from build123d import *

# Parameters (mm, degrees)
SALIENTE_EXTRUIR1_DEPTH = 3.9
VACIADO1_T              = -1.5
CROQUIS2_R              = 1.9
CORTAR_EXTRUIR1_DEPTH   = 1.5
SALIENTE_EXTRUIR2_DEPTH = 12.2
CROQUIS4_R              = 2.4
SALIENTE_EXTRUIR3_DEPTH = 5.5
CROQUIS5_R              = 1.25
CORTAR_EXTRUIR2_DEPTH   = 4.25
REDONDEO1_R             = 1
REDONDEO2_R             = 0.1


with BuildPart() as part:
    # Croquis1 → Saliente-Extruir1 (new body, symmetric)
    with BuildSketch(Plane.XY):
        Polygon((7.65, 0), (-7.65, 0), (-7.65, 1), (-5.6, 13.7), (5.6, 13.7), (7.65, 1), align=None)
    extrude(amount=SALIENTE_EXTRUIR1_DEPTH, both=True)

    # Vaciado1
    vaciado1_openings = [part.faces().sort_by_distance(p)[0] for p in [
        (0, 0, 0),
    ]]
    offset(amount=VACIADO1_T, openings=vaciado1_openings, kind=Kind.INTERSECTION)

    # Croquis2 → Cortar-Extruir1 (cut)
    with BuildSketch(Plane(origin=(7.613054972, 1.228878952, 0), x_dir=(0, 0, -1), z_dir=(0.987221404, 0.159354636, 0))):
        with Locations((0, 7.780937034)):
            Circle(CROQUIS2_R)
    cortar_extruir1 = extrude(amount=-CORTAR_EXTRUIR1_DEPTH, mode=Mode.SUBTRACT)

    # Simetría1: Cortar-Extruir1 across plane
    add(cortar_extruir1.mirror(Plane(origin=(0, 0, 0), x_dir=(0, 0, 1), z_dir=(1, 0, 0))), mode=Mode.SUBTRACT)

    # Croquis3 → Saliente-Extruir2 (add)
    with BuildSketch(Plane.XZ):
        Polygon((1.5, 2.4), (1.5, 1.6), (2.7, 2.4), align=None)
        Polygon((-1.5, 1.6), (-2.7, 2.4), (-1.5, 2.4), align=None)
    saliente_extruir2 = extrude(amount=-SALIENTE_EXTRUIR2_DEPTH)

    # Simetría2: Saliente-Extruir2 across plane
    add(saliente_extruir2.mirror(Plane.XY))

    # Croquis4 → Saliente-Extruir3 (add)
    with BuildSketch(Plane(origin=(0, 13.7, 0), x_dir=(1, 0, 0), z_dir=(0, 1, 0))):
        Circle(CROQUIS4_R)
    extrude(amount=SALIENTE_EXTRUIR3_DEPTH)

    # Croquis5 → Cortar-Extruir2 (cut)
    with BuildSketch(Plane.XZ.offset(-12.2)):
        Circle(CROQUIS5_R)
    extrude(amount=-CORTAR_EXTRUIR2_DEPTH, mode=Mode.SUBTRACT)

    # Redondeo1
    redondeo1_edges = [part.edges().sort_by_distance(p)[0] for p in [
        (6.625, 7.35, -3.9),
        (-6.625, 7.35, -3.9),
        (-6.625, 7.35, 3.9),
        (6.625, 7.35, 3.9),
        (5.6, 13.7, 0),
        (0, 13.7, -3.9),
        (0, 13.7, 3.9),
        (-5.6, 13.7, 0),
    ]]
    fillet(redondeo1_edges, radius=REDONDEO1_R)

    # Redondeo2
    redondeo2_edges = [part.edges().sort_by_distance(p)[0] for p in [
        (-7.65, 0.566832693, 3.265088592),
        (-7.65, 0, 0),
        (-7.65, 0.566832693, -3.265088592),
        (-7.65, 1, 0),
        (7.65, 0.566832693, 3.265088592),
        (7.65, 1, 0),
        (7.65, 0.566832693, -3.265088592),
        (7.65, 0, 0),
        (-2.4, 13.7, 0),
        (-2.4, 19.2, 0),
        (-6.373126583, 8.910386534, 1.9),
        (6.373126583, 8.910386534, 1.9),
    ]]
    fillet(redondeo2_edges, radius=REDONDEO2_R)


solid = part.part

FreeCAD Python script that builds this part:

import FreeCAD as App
import Part
import Sketcher

V = App.Vector
Q = App.Units.Quantity


def edges_at(feature, points):
    """Names of the edges that pass closest to the given points."""
    edges = feature.Shape.Edges
    near = lambda p: min(range(len(edges)), key=lambda i: edges[i].distToShape(Part.Vertex(*p))[0])
    return sorted({f"Edge{near(p) + 1}" for p in points})


def faces_at(feature, points):
    """Names of the faces that lie closest to the given points."""
    faces = feature.Shape.Faces
    near = lambda p: min(range(len(faces)), key=lambda i: faces[i].distToShape(Part.Vertex(*p))[0])
    return sorted({f"Face{near(p) + 1}" for p in points})

doc = App.newDocument("Part")
params = doc.addObject("Spreadsheet::Sheet", "Params")
for row, (alias, value) in enumerate([
    ("sketch1_height", "1 mm"),
    ("sketch1_width", "15.3 mm"),
    ("sketch1_width2", "11.2 mm"),
    ("pad1_length", "7.8 mm"),
    ("thickness_wall", "1.5 mm"),
    ("sketch2_diameter", "3.8 mm"),
    ("pocket1_length", "1.5 mm"),
    ("sketch3_width", "1.2 mm"),
    ("sketch3_height", "0.8 mm"),
    ("pad2_length", "12.2 mm"),
    ("sketch4_diameter", "4.8 mm"),
    ("pad3_length", "5.5 mm"),
    ("sketch5_diameter", "2.5 mm"),
    ("pocket2_length", "4.25 mm"),
    ("fillet_radius", "1 mm"),
    ("fillet2_radius", "0.1 mm"),
], start=1):
    params.set(f"A{row}", alias)
    params.set(f"B{row}", "=" + value)
    params.setAlias(f"B{row}", alias)

body = doc.addObject("PartDesign::Body", "Body")

sketch1 = body.newObject("Sketcher::SketchObject", "Sketch")
sketch1.AttachmentSupport = (doc.getObject("XY_Plane"), [""])
sketch1.MapMode = "FlatFace"
sketch1.addGeometry(Part.LineSegment(V(-7.7, 0, 0), V(7.7, 0, 0)), False)
sketch1.addGeometry(Part.LineSegment(V(7.7, 0, 0), V(7.7, 1, 0)), False)
sketch1.addGeometry(Part.LineSegment(V(7.7, 1, 0), V(5.6, 13.7, 0)), False)
sketch1.addGeometry(Part.LineSegment(V(5.6, 13.7, 0), V(-5.6, 13.7, 0)), False)
sketch1.addGeometry(Part.LineSegment(V(-5.6, 13.7, 0), V(-7.7, 1, 0)), False)
sketch1.addGeometry(Part.LineSegment(V(-7.7, 1, 0), V(-7.7, 0, 0)), False)
sketch1.addConstraint(Sketcher.Constraint("Coincident", 0, 2, 1, 1))
sketch1.addConstraint(Sketcher.Constraint("Coincident", 1, 2, 2, 1))
sketch1.addConstraint(Sketcher.Constraint("Coincident", 2, 2, 3, 1))
sketch1.addConstraint(Sketcher.Constraint("Coincident", 3, 2, 4, 1))
sketch1.addConstraint(Sketcher.Constraint("Coincident", 4, 2, 5, 1))
sketch1.addConstraint(Sketcher.Constraint("Coincident", 5, 2, 0, 1))
sketch1.addConstraint(Sketcher.Constraint("Horizontal", 0))
sketch1.addConstraint(Sketcher.Constraint("Vertical", 1))
sketch1.addConstraint(Sketcher.Constraint("Horizontal", 3))
sketch1.addConstraint(Sketcher.Constraint("Vertical", 5))
sketch1.addConstraint(Sketcher.Constraint("Symmetric", 0, 2, 5, 2, -1, 1))
sketch1.addConstraint(Sketcher.Constraint("Horizontal", 1, 2, 4, 2))
sketch1.addConstraint(Sketcher.Constraint("Equal", 2, 4))
sketch1.addConstraint(Sketcher.Constraint("DistanceY", 1, 1, 1, 2, Q("1 mm")))
sketch1.addConstraint(Sketcher.Constraint("DistanceX", 0, 1, 0, 2, Q("15.3 mm")))
sketch1.addConstraint(Sketcher.Constraint("DistanceX", 3, 2, 3, 1, Q("11.2 mm")))
sketch1.addConstraint(Sketcher.Constraint("DistanceY", -1, 1, 2, 2, Q("13.7 mm")))
sketch1.setExpression("Constraints[13]", "Params.sketch1_height")
sketch1.setExpression("Constraints[14]", "Params.sketch1_width")
sketch1.setExpression("Constraints[15]", "Params.sketch1_width2")
pad1 = body.newObject("PartDesign::Pad", "Pad")
pad1.Profile = sketch1
pad1.setExpression("Length", "Params.pad1_length")
pad1.Midplane = True
doc.recompute()

thickness = body.newObject("PartDesign::Thickness", "Thickness")
thickness.Base = (pad1, faces_at(pad1, [(0, 0, 0)]))
thickness.setExpression("Value", "Params.thickness_wall")
thickness.Reversed = True
thickness.Join = "Intersection"

sketch2 = body.newObject("Sketcher::SketchObject", "Sketch001")
sketch2.Placement = App.Placement(V(7.613055, 1.228879, 0), App.Rotation(V(0, 0, -1), V(-0.159354636, 0.987221404, 0), V(0.987221404, 0.159354636, 0), "ZXY"))
sketch2.addGeometry(Part.Circle(V(0, 7.8, 0), V(0, 0, 1), 1.9), False)
sketch2.addConstraint(Sketcher.Constraint("PointOnObject", 0, 3, -2))
sketch2.addConstraint(Sketcher.Constraint("Diameter", 0, Q("3.8 mm")))
sketch2.addConstraint(Sketcher.Constraint("DistanceY", -1, 1, 0, 3, Q("7.780937 mm")))
sketch2.setExpression("Constraints[1]", "Params.sketch2_diameter")
pocket1 = body.newObject("PartDesign::Pocket", "Pocket")
pocket1.Profile = sketch2
pocket1.setExpression("Length", "Params.pocket1_length")
doc.recompute()

mirrored = body.newObject("PartDesign::Mirrored", "Mirrored")
mirrored.Originals = [pocket1]
mirrored.MirrorPlane = (doc.getObject("YZ_Plane"), [""])
body.Tip = mirrored

sketch3 = body.newObject("Sketcher::SketchObject", "Sketch002")
sketch3.AttachmentSupport = (doc.getObject("XZ_Plane"), [""])
sketch3.MapMode = "FlatFace"
sketch3.addGeometry(Part.LineSegment(V(1.5, 2.4, 0), V(1.5, 1.6, 0)), False)
sketch3.addGeometry(Part.LineSegment(V(1.5, 1.6, 0), V(2.7, 2.4, 0)), False)
sketch3.addGeometry(Part.LineSegment(V(2.7, 2.4, 0), V(1.5, 2.4, 0)), False)
sketch3.addGeometry(Part.LineSegment(V(-2.7, 2.4, 0), V(-1.5, 1.6, 0)), False)
sketch3.addGeometry(Part.LineSegment(V(-1.5, 1.6, 0), V(-1.5, 2.4, 0)), False)
sketch3.addGeometry(Part.LineSegment(V(-1.5, 2.4, 0), V(-2.7, 2.4, 0)), False)
sketch3.addConstraint(Sketcher.Constraint("Coincident", 0, 2, 1, 1))
sketch3.addConstraint(Sketcher.Constraint("Coincident", 1, 2, 2, 1))
sketch3.addConstraint(Sketcher.Constraint("Coincident", 2, 2, 0, 1))
sketch3.addConstraint(Sketcher.Constraint("Coincident", 3, 2, 4, 1))
sketch3.addConstraint(Sketcher.Constraint("Coincident", 4, 2, 5, 1))
sketch3.addConstraint(Sketcher.Constraint("Coincident", 5, 2, 3, 1))
sketch3.addConstraint(Sketcher.Constraint("Vertical", 0))
sketch3.addConstraint(Sketcher.Constraint("Horizontal", 2))
sketch3.addConstraint(Sketcher.Constraint("Vertical", 4))
sketch3.addConstraint(Sketcher.Constraint("Horizontal", 5))
sketch3.addConstraint(Sketcher.Constraint("Symmetric", 0, 2, 3, 2, -2))
sketch3.addConstraint(Sketcher.Constraint("Symmetric", 1, 2, 5, 2, -2))
sketch3.addConstraint(Sketcher.Constraint("DistanceX", 2, 2, 2, 1, Q("1.2 mm")))
sketch3.addConstraint(Sketcher.Constraint("DistanceY", 0, 2, 0, 1, Q("0.8 mm")))
sketch3.addConstraint(Sketcher.Constraint("DistanceX", 3, 2, 0, 2, Q("3 mm")))
sketch3.addConstraint(Sketcher.Constraint("DistanceY", -1, 1, 0, 2, Q("1.6 mm")))
sketch3.setExpression("Constraints[12]", "Params.sketch3_width")
sketch3.setExpression("Constraints[13]", "Params.sketch3_height")
pad2 = body.newObject("PartDesign::Pad", "Pad001")
pad2.Profile = sketch3
pad2.setExpression("Length", "Params.pad2_length")
pad2.Reversed = True
doc.recompute()

mirrored2 = body.newObject("PartDesign::Mirrored", "Mirrored001")
mirrored2.Originals = [pad2]
mirrored2.MirrorPlane = (doc.getObject("XY_Plane"), [""])
body.Tip = mirrored2

sketch4 = body.newObject("Sketcher::SketchObject", "Sketch003")
sketch4.AttachmentSupport = (doc.getObject("XZ_Plane"), [""])
sketch4.MapMode = "FlatFace"
sketch4.AttachmentOffset = App.Placement(V(0, 0, -13.7), App.Rotation())
sketch4.addGeometry(Part.Circle(V(0, 0, 0), V(0, 0, 1), 2.4), False)
sketch4.addConstraint(Sketcher.Constraint("Coincident", 0, 3, -1, 1))
sketch4.addConstraint(Sketcher.Constraint("Diameter", 0, Q("4.8 mm")))
sketch4.setExpression("Constraints[1]", "Params.sketch4_diameter")
pad3 = body.newObject("PartDesign::Pad", "Pad002")
pad3.Profile = sketch4
pad3.setExpression("Length", "Params.pad3_length")
pad3.Reversed = True

sketch5 = body.newObject("Sketcher::SketchObject", "Sketch004")
sketch5.AttachmentSupport = (doc.getObject("XZ_Plane"), [""])
sketch5.MapMode = "FlatFace"
sketch5.AttachmentOffset = App.Placement(V(0, 0, -12.2), App.Rotation())
sketch5.addGeometry(Part.Circle(V(0, 0, 0), V(0, 0, 1), 1.2), False)
sketch5.addConstraint(Sketcher.Constraint("Coincident", 0, 3, -1, 1))
sketch5.addConstraint(Sketcher.Constraint("Diameter", 0, Q("2.5 mm")))
sketch5.setExpression("Constraints[1]", "Params.sketch5_diameter")
pocket2 = body.newObject("PartDesign::Pocket", "Pocket001")
pocket2.Profile = sketch5
pocket2.setExpression("Length", "Params.pocket2_length")
doc.recompute()

fillet = body.newObject("PartDesign::Fillet", "Fillet")
fillet.Base = (pocket2, edges_at(pocket2, [
    (6.625, 7.35, -3.9),
    (-6.625, 7.35, -3.9),
    (-6.625, 7.35, 3.9),
    (6.625, 7.35, 3.9),
    (5.6, 13.7, 0),
    (0, 13.7, -3.9),
    (0, 13.7, 3.9),
    (-5.6, 13.7, 0),
]))
fillet.setExpression("Radius", "Params.fillet_radius")
doc.recompute()

fillet2 = body.newObject("PartDesign::Fillet", "Fillet001")
fillet2.Base = (fillet, edges_at(fillet, [
    (-7.65, 0.567, 3.265),
    (-7.65, 0, 0),
    (-7.65, 0.567, -3.265),
    (-7.65, 1, 0),
    (7.65, 0.567, 3.265),
    (7.65, 1, 0),
    (7.65, 0.567, -3.265),
    (7.65, 0, 0),
    (-2.4, 13.7, 0),
    (-2.4, 19.2, 0),
    (-6.373, 8.91, 1.9),
    (6.373, 8.91, 1.9),
]))
fillet2.setExpression("Radius", "Params.fillet2_radius")

doc.recompute()
